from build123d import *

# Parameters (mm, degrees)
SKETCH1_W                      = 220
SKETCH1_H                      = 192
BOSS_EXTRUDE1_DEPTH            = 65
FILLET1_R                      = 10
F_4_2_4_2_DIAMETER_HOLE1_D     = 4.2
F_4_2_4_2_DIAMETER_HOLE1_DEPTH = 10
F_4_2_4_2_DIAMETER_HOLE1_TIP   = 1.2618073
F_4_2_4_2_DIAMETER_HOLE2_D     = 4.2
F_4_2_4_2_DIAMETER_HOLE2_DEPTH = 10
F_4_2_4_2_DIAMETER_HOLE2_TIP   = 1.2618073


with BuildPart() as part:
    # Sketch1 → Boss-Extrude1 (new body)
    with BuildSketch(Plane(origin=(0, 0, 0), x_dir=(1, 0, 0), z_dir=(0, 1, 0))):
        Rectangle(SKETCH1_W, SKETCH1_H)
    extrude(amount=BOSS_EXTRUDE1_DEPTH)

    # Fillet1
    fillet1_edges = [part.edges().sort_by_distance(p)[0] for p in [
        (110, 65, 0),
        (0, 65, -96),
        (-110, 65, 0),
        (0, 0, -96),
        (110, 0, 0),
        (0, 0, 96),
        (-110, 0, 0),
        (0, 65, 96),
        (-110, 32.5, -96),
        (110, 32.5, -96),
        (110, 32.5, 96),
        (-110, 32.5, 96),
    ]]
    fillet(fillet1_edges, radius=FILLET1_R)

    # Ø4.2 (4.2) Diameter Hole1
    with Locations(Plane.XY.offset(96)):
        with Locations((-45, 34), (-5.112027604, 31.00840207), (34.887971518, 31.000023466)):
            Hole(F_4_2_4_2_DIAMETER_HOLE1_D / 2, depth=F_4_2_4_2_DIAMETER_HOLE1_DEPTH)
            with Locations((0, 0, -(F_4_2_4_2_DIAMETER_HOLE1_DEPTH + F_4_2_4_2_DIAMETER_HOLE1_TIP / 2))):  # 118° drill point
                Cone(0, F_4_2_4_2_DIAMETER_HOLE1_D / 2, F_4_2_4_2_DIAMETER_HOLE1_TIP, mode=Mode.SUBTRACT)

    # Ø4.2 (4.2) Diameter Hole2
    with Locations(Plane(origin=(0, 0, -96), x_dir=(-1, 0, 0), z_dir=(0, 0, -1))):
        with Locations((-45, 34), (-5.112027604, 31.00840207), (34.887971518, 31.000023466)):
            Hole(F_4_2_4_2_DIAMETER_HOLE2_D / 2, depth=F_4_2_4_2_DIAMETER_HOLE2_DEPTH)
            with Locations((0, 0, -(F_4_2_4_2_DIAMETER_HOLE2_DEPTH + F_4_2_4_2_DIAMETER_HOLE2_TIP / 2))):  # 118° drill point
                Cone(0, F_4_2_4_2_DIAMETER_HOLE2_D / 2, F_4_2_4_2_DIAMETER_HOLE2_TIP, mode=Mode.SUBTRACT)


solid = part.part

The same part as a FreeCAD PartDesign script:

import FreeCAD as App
import Part
import Sketcher

V = App.Vector

doc = App.newDocument("Part")
params = doc.addObject("Spreadsheet::Sheet", "Params")
for row, (alias, value) in enumerate([
    ("sketch1_width", "220 mm"),
    ("sketch1_height", "192 mm"),
    ("pad1_length", "65 mm"),
    ("fillet_radius", "10 mm"),
    ("sketch2_diameter", "4.2 mm"),
    ("hole_diameter", "4.2 mm"),
    ("hole_depth", "10 mm"),
    ("sketch3_diameter", "4.2 mm"),
    ("hole2_diameter", "4.2 mm"),
    ("hole2_depth", "10 mm"),
], start=1):
    params.set(f"A{row}", alias)
    params.set(f"B{row}", "=" + value)
    params.setAlias(f"B{row}", alias)

body = doc.addObject("PartDesign::Body", "Body")

# Sketch on XZ plane
sketch1 = body.newObject("Sketcher::SketchObject", "Sketch")
sketch1.AttachmentSupport = (doc.getObject("XZ_Plane"), [""])
sketch1.MapMode = "FlatFace"
sketch1.addGeometry([
    Part.LineSegment(V(-110, -96, 0), V(-110, 96, 0)),
    Part.LineSegment(V(-110, 96, 0), V(110, 96, 0)),
    Part.LineSegment(V(110, 96, 0), V(110, -96, 0)),
    Part.LineSegment(V(110, -96, 0), V(-110, -96, 0)),
], False)
sketch1.addConstraint([
    Sketcher.Constraint("Coincident", 0, 2, 1, 1),
    Sketcher.Constraint("Coincident", 1, 2, 2, 1),
    Sketcher.Constraint("Coincident", 2, 2, 3, 1),
    Sketcher.Constraint("Coincident", 3, 2, 0, 1),
    Sketcher.Constraint("Vertical", 0),
    Sketcher.Constraint("Horizontal", 1),
    Sketcher.Constraint("Vertical", 2),
    Sketcher.Constraint("Horizontal", 3),
    Sketcher.Constraint("Symmetric", 0, 2, 2, 2, -1, 1),
    Sketcher.Constraint("DistanceX", 1, 1, 1, 2, 220.0),
    Sketcher.Constraint("DistanceY", 0, 1, 0, 2, 192.0),
])
sketch1.setExpression("Constraints[9]", "Params.sketch1_width")
sketch1.setExpression("Constraints[10]", "Params.sketch1_height")
pad1 = body.newObject("PartDesign::Pad", "Pad")
pad1.Profile = sketch1
pad1.setExpression("Length", "Params.pad1_length")
pad1.Reversed = True
doc.recompute()

fillet = body.newObject("PartDesign::Fillet", "Fillet")
fillet.Base = (pad1, ["Edge1"])
fillet.UseAllEdges = True
fillet.setExpression("Radius", "Params.fillet_radius")

# Sketch on XY plane
sketch2 = body.newObject("Sketcher::SketchObject", "Sketch001")
sketch2.AttachmentSupport = (doc.getObject("XY_Plane"), [""])
sketch2.MapMode = "FlatFace"
sketch2.AttachmentOffset = App.Placement(V(0, 0, 96), App.Rotation())
sketch2.addGeometry([
    Part.Circle(V(-45, 34, 0), V(0, 0, 1), 2.1),
    Part.Circle(V(-5.112028, 31.008402, 0), V(0, 0, 1), 2.1),
    Part.Circle(V(34.887972, 31.000023, 0), V(0, 0, 1), 2.1),
], False)
sketch2.addConstraint([
    Sketcher.Constraint("Equal", 0, 1),
    Sketcher.Constraint("Equal", 1, 2),
    Sketcher.Constraint("Diameter", 0, 4.2),
    Sketcher.Constraint("DistanceX", 0, 3, -1, 1, 45.0),
    Sketcher.Constraint("DistanceY", -1, 1, 0, 3, 34.0),
    Sketcher.Constraint("DistanceX", 1, 3, 2, 3, 39.999999),
    Sketcher.Constraint("DistanceX", -1, 1, 2, 3, 34.887972),
    Sketcher.Constraint("DistanceY", 2, 3, 1, 3, 0.008379),
    Sketcher.Constraint("DistanceY", -1, 1, 1, 3, 31.008402),
])
sketch2.setExpression("Constraints[2]", "Params.sketch2_diameter")
doc.recompute()
hole = body.newObject("PartDesign::Hole", "Hole")
hole.Profile = sketch2
hole.ThreadType = "None"
hole.setExpression("Diameter", "Params.hole_diameter")
hole.DepthType = "Dimension"
hole.setExpression("Depth", "Params.hole_depth")
hole.DrillPoint = "Angled"
hole.DrillPointAngle = 118

# Sketch on XY plane
sketch3 = body.newObject("Sketcher::SketchObject", "Sketch002")
sketch3.AttachmentSupport = (doc.getObject("XY_Plane"), [""])
sketch3.MapMode = "FlatFace"
sketch3.AttachmentOffset = App.Placement(V(0, 0, -96), App.Rotation())
sketch3.addGeometry([
    Part.Circle(V(45, 34, 0), V(0, 0, 1), 2.1),
    Part.Circle(V(5.112028, 31.008402, 0), V(0, 0, 1), 2.1),
    Part.Circle(V(-34.887972, 31.000023, 0), V(0, 0, 1), 2.1),
], False)
sketch3.addConstraint([
    Sketcher.Constraint("Equal", 0, 1),
    Sketcher.Constraint("Equal", 1, 2),
    Sketcher.Constraint("Diameter", 0, 4.2),
    Sketcher.Constraint("DistanceX", -1, 1, 0, 3, 45.0),
    Sketcher.Constraint("DistanceY", -1, 1, 0, 3, 34.0),
    Sketcher.Constraint("DistanceX", 2, 3, 1, 3, 39.999999),
    Sketcher.Constraint("DistanceX", 2, 3, -1, 1, 34.887972),
    Sketcher.Constraint("DistanceY", 2, 3, 1, 3, 0.008379),
    Sketcher.Constraint("DistanceY", -1, 1, 1, 3, 31.008402),
])
sketch3.setExpression("Constraints[2]", "Params.sketch3_diameter")
doc.recompute()
hole2 = body.newObject("PartDesign::Hole", "Hole001")
hole2.Profile = sketch3
hole2.ThreadType = "None"
hole2.setExpression("Diameter", "Params.hole2_diameter")
hole2.DepthType = "Dimension"
hole2.setExpression("Depth", "Params.hole2_depth")
hole2.DrillPoint = "Angled"
hole2.DrillPointAngle = 118
hole2.Reversed = True

doc.recompute()
